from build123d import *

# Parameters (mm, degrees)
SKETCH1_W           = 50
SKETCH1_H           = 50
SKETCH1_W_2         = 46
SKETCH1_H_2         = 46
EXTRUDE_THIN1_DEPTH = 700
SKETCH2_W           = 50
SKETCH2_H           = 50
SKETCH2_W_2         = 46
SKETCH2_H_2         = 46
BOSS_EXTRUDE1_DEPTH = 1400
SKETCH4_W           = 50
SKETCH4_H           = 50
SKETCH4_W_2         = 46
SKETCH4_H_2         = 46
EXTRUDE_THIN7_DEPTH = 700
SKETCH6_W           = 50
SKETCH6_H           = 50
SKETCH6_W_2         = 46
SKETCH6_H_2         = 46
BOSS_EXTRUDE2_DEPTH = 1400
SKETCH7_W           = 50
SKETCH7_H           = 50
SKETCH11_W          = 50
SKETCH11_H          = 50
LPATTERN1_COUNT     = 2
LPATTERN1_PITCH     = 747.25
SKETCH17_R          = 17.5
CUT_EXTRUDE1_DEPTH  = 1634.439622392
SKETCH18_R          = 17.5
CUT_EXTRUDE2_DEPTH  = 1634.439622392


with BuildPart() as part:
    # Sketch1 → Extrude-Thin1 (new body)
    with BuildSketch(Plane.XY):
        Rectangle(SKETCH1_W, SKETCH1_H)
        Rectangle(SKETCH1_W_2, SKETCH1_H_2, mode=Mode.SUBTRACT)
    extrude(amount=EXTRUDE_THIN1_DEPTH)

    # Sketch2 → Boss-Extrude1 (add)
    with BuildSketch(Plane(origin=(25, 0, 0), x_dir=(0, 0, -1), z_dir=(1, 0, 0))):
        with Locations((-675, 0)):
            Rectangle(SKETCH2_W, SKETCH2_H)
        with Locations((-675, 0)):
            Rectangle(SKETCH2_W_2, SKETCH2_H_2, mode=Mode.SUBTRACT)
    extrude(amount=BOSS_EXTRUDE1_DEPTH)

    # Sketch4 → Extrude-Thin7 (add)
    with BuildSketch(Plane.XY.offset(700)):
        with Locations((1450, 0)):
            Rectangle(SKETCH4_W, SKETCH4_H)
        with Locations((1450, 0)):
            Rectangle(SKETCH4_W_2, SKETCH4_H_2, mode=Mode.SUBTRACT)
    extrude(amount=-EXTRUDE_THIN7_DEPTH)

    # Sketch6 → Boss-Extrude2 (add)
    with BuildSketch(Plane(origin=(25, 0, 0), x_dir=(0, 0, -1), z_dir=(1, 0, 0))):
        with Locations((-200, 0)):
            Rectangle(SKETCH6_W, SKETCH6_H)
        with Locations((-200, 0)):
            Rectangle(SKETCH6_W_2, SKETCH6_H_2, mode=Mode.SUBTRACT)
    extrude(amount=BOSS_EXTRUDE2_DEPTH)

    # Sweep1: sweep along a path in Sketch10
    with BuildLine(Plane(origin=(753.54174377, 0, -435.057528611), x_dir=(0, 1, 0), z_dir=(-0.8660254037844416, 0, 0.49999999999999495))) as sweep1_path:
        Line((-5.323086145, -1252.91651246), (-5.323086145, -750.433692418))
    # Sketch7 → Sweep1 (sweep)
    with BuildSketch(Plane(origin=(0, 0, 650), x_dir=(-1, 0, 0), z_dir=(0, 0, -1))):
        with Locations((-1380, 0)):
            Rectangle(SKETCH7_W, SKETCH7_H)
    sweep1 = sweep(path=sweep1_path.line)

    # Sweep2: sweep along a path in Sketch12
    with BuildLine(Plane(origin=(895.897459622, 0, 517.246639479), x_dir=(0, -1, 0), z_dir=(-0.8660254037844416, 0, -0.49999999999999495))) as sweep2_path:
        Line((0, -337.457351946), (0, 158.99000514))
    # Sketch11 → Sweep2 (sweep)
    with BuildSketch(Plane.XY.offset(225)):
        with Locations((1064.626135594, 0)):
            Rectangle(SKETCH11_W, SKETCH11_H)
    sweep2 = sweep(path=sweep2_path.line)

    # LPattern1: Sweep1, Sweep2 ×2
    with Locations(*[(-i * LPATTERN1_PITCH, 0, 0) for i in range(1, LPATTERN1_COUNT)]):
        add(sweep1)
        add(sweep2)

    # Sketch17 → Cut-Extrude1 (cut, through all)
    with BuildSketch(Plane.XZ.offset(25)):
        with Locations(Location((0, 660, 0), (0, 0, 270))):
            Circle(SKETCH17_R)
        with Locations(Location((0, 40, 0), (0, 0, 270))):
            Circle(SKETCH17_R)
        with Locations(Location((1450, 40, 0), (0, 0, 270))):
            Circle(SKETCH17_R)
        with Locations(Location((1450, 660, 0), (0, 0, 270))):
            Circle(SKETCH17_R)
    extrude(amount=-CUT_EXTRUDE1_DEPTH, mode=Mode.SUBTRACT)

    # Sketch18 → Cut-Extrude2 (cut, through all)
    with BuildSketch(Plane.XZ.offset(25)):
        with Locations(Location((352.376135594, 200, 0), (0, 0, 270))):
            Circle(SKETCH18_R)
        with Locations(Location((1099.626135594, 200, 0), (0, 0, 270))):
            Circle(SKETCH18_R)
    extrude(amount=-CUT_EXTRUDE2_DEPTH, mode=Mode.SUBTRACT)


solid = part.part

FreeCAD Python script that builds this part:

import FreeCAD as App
import Part
import Sketcher

V = App.Vector
Q = App.Units.Quantity


def add_polygon(sketch, points):
    """Adds a closed chain of lines whose ends are joined by coincident constraints."""
    first, n = sketch.GeometryCount, len(points)
    for a, b in zip(points, points[1:] + points[:1]):
        sketch.addGeometry(Part.LineSegment(App.Vector(*a, 0), App.Vector(*b, 0)), False)
    for i in range(n):
        sketch.addConstraint(Sketcher.Constraint("Coincident", first + i, 2, first + (i + 1) % n, 1))

doc = App.newDocument("Part")
body = doc.addObject("PartDesign::Body", "Body")

sketch1 = doc.addObject("Sketcher::SketchObject", "Sketch")
body.addObject(sketch1)
sketch1.AttachmentSupport = (doc.XY_Plane, [""])
sketch1.MapMode = "FlatFace"
add_polygon(sketch1, [(-25, 25), (-25, -25), (25, -25), (25, 25)])
add_polygon(sketch1, [(23, -23), (-23, -23), (-23, 23), (23, 23)])
sketch1.addConstraint(Sketcher.Constraint("Vertical", 0))
sketch1.addConstraint(Sketcher.Constraint("Horizontal", 1))
sketch1.addConstraint(Sketcher.Constraint("Vertical", 2))
sketch1.addConstraint(Sketcher.Constraint("Horizontal", 3))
sketch1.addConstraint(Sketcher.Constraint("Horizontal", 4))
sketch1.addConstraint(Sketcher.Constraint("Vertical", 5))
sketch1.addConstraint(Sketcher.Constraint("Horizontal", 6))
sketch1.addConstraint(Sketcher.Constraint("Vertical", 7))
sketch1.addConstraint(Sketcher.Constraint("Symmetric", 0, 2, 2, 2, -1, 1))
sketch1.addConstraint(Sketcher.Constraint("Symmetric", 4, 2, 6, 2, -1, 1))
sketch1.addConstraint(Sketcher.Constraint("Equal", 3, 0))
sketch1.addConstraint(Sketcher.Constraint("Equal", 6, 5))
sketch1.addConstraint(Sketcher.Constraint("DistanceX", 1, 1, 1, 2, Q("50 mm")))
sketch1.addConstraint(Sketcher.Constraint("DistanceX", 4, 2, 4, 1, Q("46 mm")))
pad1 = doc.addObject("PartDesign::Pad", "Pad")
body.addObject(pad1)
pad1.Profile = sketch1
pad1.Length = 700

sketch2 = doc.addObject("Sketcher::SketchObject", "Sketch001")
body.addObject(sketch2)
sketch2.AttachmentSupport = (doc.YZ_Plane, [""])
sketch2.MapMode = "FlatFace"
sketch2.AttachmentOffset = App.Placement(V(0, 0, 25), App.Rotation())
add_polygon(sketch2, [(25, 700), (-25, 700), (-25, 650), (25, 650)])
add_polygon(sketch2, [(-23, 652), (-23, 698), (23, 698), (23, 652)])
sketch2.addConstraint(Sketcher.Constraint("Horizontal", 0))
sketch2.addConstraint(Sketcher.Constraint("Vertical", 1))
sketch2.addConstraint(Sketcher.Constraint("Horizontal", 2))
sketch2.addConstraint(Sketcher.Constraint("Vertical", 3))
sketch2.addConstraint(Sketcher.Constraint("Vertical", 4))
sketch2.addConstraint(Sketcher.Constraint("Horizontal", 5))
sketch2.addConstraint(Sketcher.Constraint("Vertical", 6))
sketch2.addConstraint(Sketcher.Constraint("Horizontal", 7))
sketch2.addConstraint(Sketcher.Constraint("Equal", 2, 1))
sketch2.addConstraint(Sketcher.Constraint("Equal", 7, 4))
sketch2.addConstraint(Sketcher.Constraint("DistanceX", 0, 2, 0, 1, Q("50 mm")))
sketch2.addConstraint(Sketcher.Constraint("DistanceX", 5, 1, 5, 2, Q("46 mm")))
sketch2.addConstraint(Sketcher.Constraint("DistanceX", 0, 2, -1, 1, Q("25 mm")))
sketch2.addConstraint(Sketcher.Constraint("DistanceY", -1, 1, 0, 2, Q("700 mm")))
sketch2.addConstraint(Sketcher.Constraint("DistanceX", 4, 2, -1, 1, Q("23 mm")))
sketch2.addConstraint(Sketcher.Constraint("DistanceY", -1, 1, 4, 2, Q("698 mm")))
pad2 = doc.addObject("PartDesign::Pad", "Pad001")
body.addObject(pad2)
pad2.Profile = sketch2
pad2.Length = 1400

sketch3 = doc.addObject("Sketcher::SketchObject", "Sketch002")
body.addObject(sketch3)
sketch3.AttachmentSupport = (doc.XY_Plane, [""])
sketch3.MapMode = "FlatFace"
sketch3.AttachmentOffset = App.Placement(V(0, 0, 700), App.Rotation())
add_polygon(sketch3, [(1425, 25), (1425, -25), (1475, -25), (1475, 25)])
add_polygon(sketch3, [(1473, -23), (1427, -23), (1427, 23), (1473, 23)])
sketch3.addConstraint(Sketcher.Constraint("Vertical", 0))
sketch3.addConstraint(Sketcher.Constraint("Horizontal", 1))
sketch3.addConstraint(Sketcher.Constraint("Vertical", 2))
sketch3.addConstraint(Sketcher.Constraint("Horizontal", 3))
sketch3.addConstraint(Sketcher.Constraint("Horizontal", 4))
sketch3.addConstraint(Sketcher.Constraint("Vertical", 5))
sketch3.addConstraint(Sketcher.Constraint("Horizontal", 6))
sketch3.addConstraint(Sketcher.Constraint("Vertical", 7))
sketch3.addConstraint(Sketcher.Constraint("Equal", 3, 0))
sketch3.addConstraint(Sketcher.Constraint("Equal", 6, 5))
sketch3.addConstraint(Sketcher.Constraint("DistanceX", 1, 1, 1, 2, Q("50 mm")))
sketch3.addConstraint(Sketcher.Constraint("DistanceX", 4, 2, 4, 1, Q("46 mm")))
sketch3.addConstraint(Sketcher.Constraint("DistanceX", -1, 1, 0, 2, Q("1425 mm")))
sketch3.addConstraint(Sketcher.Constraint("DistanceY", 0, 2, -1, 1, Q("25 mm")))
sketch3.addConstraint(Sketcher.Constraint("DistanceX", -1, 1, 4, 2, Q("1427 mm")))
sketch3.addConstraint(Sketcher.Constraint("DistanceY", 4, 2, -1, 1, Q("23 mm")))
pad3 = doc.addObject("PartDesign::Pad", "Pad002")
body.addObject(pad3)
pad3.Profile = sketch3
pad3.Length = 700
pad3.Reversed = True

sketch4 = doc.addObject("Sketcher::SketchObject", "Sketch003")
body.addObject(sketch4)
sketch4.AttachmentSupport = (doc.YZ_Plane, [""])
sketch4.MapMode = "FlatFace"
sketch4.AttachmentOffset = App.Placement(V(0, 0, 25), App.Rotation())
add_polygon(sketch4, [(25, 225), (-25, 225), (-25, 175), (25, 175)])
add_polygon(sketch4, [(-23, 177), (-23, 223), (23, 223), (23, 177)])
sketch4.addConstraint(Sketcher.Constraint("Horizontal", 0))
sketch4.addConstraint(Sketcher.Constraint("Vertical", 1))
sketch4.addConstraint(Sketcher.Constraint("Horizontal", 2))
sketch4.addConstraint(Sketcher.Constraint("Vertical", 3))
sketch4.addConstraint(Sketcher.Constraint("Vertical", 4))
sketch4.addConstraint(Sketcher.Constraint("Horizontal", 5))
sketch4.addConstraint(Sketcher.Constraint("Vertical", 6))
sketch4.addConstraint(Sketcher.Constraint("Horizontal", 7))
sketch4.addConstraint(Sketcher.Constraint("Equal", 2, 1))
sketch4.addConstraint(Sketcher.Constraint("Equal", 7, 4))
sketch4.addConstraint(Sketcher.Constraint("DistanceX", 0, 2, 0, 1, Q("50 mm")))
sketch4.addConstraint(Sketcher.Constraint("DistanceX", 5, 1, 5, 2, Q("46 mm")))
sketch4.addConstraint(Sketcher.Constraint("DistanceX", 0, 2, -1, 1, Q("25 mm")))
sketch4.addConstraint(Sketcher.Constraint("DistanceY", -1, 1, 0, 2, Q("225 mm")))
sketch4.addConstraint(Sketcher.Constraint("DistanceX", 4, 2, -1, 1, Q("23 mm")))
sketch4.addConstraint(Sketcher.Constraint("DistanceY", -1, 1, 4, 2, Q("223 mm")))
pad4 = doc.addObject("PartDesign::Pad", "Pad003")
body.addObject(pad4)
pad4.Profile = sketch4
pad4.Length = 1400

sketch5 = doc.addObject("Sketcher::SketchObject", "Sketch004")
body.addObject(sketch5)
sketch5.AttachmentSupport = (doc.XY_Plane, [""])
sketch5.MapMode = "FlatFace"
sketch5.AttachmentOffset = App.Placement(V(0, 0, 650), App.Rotation())
add_polygon(sketch5, [(1405, 25), (1405, -25), (1355, -25), (1355, 25)])
sketch5.addConstraint(Sketcher.Constraint("Vertical", 0))
sketch5.addConstraint(Sketcher.Constraint("Horizontal", 1))
sketch5.addConstraint(Sketcher.Constraint("Vertical", 2))
sketch5.addConstraint(Sketcher.Constraint("Horizontal", 3))
sketch5.addConstraint(Sketcher.Constraint("Equal", 3, 0))
sketch5.addConstraint(Sketcher.Constraint("DistanceX", 1, 2, 1, 1, Q("50 mm")))
sketch5.addConstraint(Sketcher.Constraint("DistanceX", -1, 1, 0, 2, Q("1405 mm")))
sketch5.addConstraint(Sketcher.Constraint("DistanceY", 0, 2, -1, 1, Q("25 mm")))

sketch6 = doc.addObject("Sketcher::SketchObject", "Sketch005")
body.addObject(sketch6)
sketch6.Placement = App.Placement(V(753.541744, 0, -435.057529), App.Rotation(V(-0.5, 0, -0.866025404), V(0, 1, 0), V(0.866025404, 0, -0.5), "ZXY"))
sketch6.addGeometry(Part.LineSegment(V(-1253, -5, 0), V(-750, -5, 0)), False)
sketch6.addConstraint(Sketcher.Constraint("Horizontal", 0))
sketch6.addConstraint(Sketcher.Constraint("DistanceX", 0, 1, 0, 2, Q("502.48282 mm")))
sketch6.addConstraint(Sketcher.Constraint("DistanceX", 0, 1, -1, 1, Q("1252.916513 mm")))
sketch6.addConstraint(Sketcher.Constraint("DistanceY", 0, 1, -1, 1, Q("5.323086 mm")))
doc.recompute()

additivepipe = doc.addObject("PartDesign::AdditivePipe", "AdditivePipe")
body.addObject(additivepipe)
additivepipe.Profile = sketch5
additivepipe.Spine = (sketch6, ["Edge1"])

sketch7 = doc.addObject("Sketcher::SketchObject", "Sketch006")
body.addObject(sketch7)
sketch7.AttachmentSupport = (doc.XY_Plane, [""])
sketch7.MapMode = "FlatFace"
sketch7.AttachmentOffset = App.Placement(V(0, 0, 225), App.Rotation())
add_polygon(sketch7, [(1040, 25), (1040, -25), (1090, -25), (1090, 25)])
sketch7.addConstraint(Sketcher.Constraint("Vertical", 0))
sketch7.addConstraint(Sketcher.Constraint("Horizontal", 1))
sketch7.addConstraint(Sketcher.Constraint("Vertical", 2))
sketch7.addConstraint(Sketcher.Constraint("Horizontal", 3))
sketch7.addConstraint(Sketcher.Constraint("Equal", 3, 0))
sketch7.addConstraint(Sketcher.Constraint("DistanceX", 1, 1, 1, 2, Q("50 mm")))
sketch7.addConstraint(Sketcher.Constraint("DistanceY", 0, 2, -1, 1, Q("25 mm")))
sketch7.addConstraint(Sketcher.Constraint("DistanceX", -1, 1, 0, 2, Q("1039.626136 mm")))

sketch8 = doc.addObject("Sketcher::SketchObject", "Sketch007")
body.addObject(sketch8)
sketch8.Placement = App.Placement(V(895.89746, 0, 517.246639), App.Rotation(V(-0.5, 0, 0.866025404), V(0, 1, 0), V(-0.866025404, 0, -0.5), "ZXY"))
sketch8.addGeometry(Part.LineSegment(V(-337, 0, 0), V(159, 0, 0)), False)
sketch8.addConstraint(Sketcher.Constraint("Horizontal", 0))
sketch8.addConstraint(Sketcher.Constraint("PointOnObject", 0, 1, -1))
sketch8.addConstraint(Sketcher.Constraint("DistanceX", 0, 1, 0, 2, Q("496.447357 mm")))
sketch8.addConstraint(Sketcher.Constraint("DistanceX", 0, 1, -1, 1, Q("337.457352 mm")))
doc.recompute()

additivepipe2 = doc.addObject("PartDesign::AdditivePipe", "AdditivePipe001")
body.addObject(additivepipe2)
additivepipe2.Profile = sketch7
additivepipe2.Spine = (sketch8, ["Edge1"])
doc.recompute()

linearpattern = doc.addObject("PartDesign::LinearPattern", "LinearPattern")
body.addObject(linearpattern)
linearpattern.Originals = [additivepipe, additivepipe2]
linearpattern.Direction = (doc.X_Axis, [""])
linearpattern.Mode = "offset"
linearpattern.Offset = 747.25
linearpattern.Occurrences = 2
linearpattern.Reversed = True
body.Tip = linearpattern

sketch9 = doc.addObject("Sketcher::SketchObject", "Sketch008")
body.addObject(sketch9)
sketch9.AttachmentSupport = (doc.XZ_Plane, [""])
sketch9.MapMode = "FlatFace"
sketch9.AttachmentOffset = App.Placement(V(0, 0, 25), App.Rotation())
sketch9.addGeometry(Part.Circle(V(0, 660, 0), V(0, 0, 1), 18), False)
sketch9.addGeometry(Part.Circle(V(0, 40, 0), V(0, 0, 1), 18), False)
sketch9.addGeometry(Part.Circle(V(1450, 40, 0), V(0, 0, 1), 18), False)
sketch9.addGeometry(Part.Circle(V(1450, 660, 0), V(0, 0, 1), 18), False)
sketch9.addConstraint(Sketcher.Constraint("Equal", 0, 1))
sketch9.addConstraint(Sketcher.Constraint("Equal", 1, 2))
sketch9.addConstraint(Sketcher.Constraint("Equal", 2, 3))
sketch9.addConstraint(Sketcher.Constraint("PointOnObject", 0, 3, -2))
sketch9.addConstraint(Sketcher.Constraint("PointOnObject", 1, 3, -2))
sketch9.addConstraint(Sketcher.Constraint("Horizontal", 1, 3, 2, 3))
sketch9.addConstraint(Sketcher.Constraint("Horizontal", 0, 3, 3, 3))
sketch9.addConstraint(Sketcher.Constraint("Vertical", 2, 3, 3, 3))
sketch9.addConstraint(Sketcher.Constraint("Diameter", 0, Q("35 mm")))
sketch9.addConstraint(Sketcher.Constraint("DistanceY", -1, 1, 0, 3, Q("660 mm")))
sketch9.addConstraint(Sketcher.Constraint("DistanceY", -1, 1, 1, 3, Q("40 mm")))
sketch9.addConstraint(Sketcher.Constraint("DistanceX", -1, 1, 2, 3, Q("1450 mm")))
pocket1 = doc.addObject("PartDesign::Pocket", "Pocket")
body.addObject(pocket1)
pocket1.Profile = sketch9
pocket1.Type = "ThroughAll"

sketch10 = doc.addObject("Sketcher::SketchObject", "Sketch009")
body.addObject(sketch10)
sketch10.AttachmentSupport = (doc.XZ_Plane, [""])
sketch10.MapMode = "FlatFace"
sketch10.AttachmentOffset = App.Placement(V(0, 0, 25), App.Rotation())
sketch10.addGeometry(Part.Circle(V(352, 200, 0), V(0, 0, 1), 18), False)
sketch10.addGeometry(Part.Circle(V(1100, 200, 0), V(0, 0, 1), 18), False)
sketch10.addConstraint(Sketcher.Constraint("Equal", 0, 1))
sketch10.addConstraint(Sketcher.Constraint("Horizontal", 0, 3, 1, 3))
sketch10.addConstraint(Sketcher.Constraint("Diameter", 0, Q("35 mm")))
sketch10.addConstraint(Sketcher.Constraint("DistanceY", -1, 1, 0, 3, Q("200 mm")))
sketch10.addConstraint(Sketcher.Constraint("DistanceX", 0, 3, 1, 3, Q("747.25 mm")))
sketch10.addConstraint(Sketcher.Constraint("DistanceX", -1, 1, 0, 3, Q("352.376136 mm")))
pocket2 = doc.addObject("PartDesign::Pocket", "Pocket001")
body.addObject(pocket2)
pocket2.Profile = sketch10
pocket2.Type = "ThroughAll"

doc.recompute()
